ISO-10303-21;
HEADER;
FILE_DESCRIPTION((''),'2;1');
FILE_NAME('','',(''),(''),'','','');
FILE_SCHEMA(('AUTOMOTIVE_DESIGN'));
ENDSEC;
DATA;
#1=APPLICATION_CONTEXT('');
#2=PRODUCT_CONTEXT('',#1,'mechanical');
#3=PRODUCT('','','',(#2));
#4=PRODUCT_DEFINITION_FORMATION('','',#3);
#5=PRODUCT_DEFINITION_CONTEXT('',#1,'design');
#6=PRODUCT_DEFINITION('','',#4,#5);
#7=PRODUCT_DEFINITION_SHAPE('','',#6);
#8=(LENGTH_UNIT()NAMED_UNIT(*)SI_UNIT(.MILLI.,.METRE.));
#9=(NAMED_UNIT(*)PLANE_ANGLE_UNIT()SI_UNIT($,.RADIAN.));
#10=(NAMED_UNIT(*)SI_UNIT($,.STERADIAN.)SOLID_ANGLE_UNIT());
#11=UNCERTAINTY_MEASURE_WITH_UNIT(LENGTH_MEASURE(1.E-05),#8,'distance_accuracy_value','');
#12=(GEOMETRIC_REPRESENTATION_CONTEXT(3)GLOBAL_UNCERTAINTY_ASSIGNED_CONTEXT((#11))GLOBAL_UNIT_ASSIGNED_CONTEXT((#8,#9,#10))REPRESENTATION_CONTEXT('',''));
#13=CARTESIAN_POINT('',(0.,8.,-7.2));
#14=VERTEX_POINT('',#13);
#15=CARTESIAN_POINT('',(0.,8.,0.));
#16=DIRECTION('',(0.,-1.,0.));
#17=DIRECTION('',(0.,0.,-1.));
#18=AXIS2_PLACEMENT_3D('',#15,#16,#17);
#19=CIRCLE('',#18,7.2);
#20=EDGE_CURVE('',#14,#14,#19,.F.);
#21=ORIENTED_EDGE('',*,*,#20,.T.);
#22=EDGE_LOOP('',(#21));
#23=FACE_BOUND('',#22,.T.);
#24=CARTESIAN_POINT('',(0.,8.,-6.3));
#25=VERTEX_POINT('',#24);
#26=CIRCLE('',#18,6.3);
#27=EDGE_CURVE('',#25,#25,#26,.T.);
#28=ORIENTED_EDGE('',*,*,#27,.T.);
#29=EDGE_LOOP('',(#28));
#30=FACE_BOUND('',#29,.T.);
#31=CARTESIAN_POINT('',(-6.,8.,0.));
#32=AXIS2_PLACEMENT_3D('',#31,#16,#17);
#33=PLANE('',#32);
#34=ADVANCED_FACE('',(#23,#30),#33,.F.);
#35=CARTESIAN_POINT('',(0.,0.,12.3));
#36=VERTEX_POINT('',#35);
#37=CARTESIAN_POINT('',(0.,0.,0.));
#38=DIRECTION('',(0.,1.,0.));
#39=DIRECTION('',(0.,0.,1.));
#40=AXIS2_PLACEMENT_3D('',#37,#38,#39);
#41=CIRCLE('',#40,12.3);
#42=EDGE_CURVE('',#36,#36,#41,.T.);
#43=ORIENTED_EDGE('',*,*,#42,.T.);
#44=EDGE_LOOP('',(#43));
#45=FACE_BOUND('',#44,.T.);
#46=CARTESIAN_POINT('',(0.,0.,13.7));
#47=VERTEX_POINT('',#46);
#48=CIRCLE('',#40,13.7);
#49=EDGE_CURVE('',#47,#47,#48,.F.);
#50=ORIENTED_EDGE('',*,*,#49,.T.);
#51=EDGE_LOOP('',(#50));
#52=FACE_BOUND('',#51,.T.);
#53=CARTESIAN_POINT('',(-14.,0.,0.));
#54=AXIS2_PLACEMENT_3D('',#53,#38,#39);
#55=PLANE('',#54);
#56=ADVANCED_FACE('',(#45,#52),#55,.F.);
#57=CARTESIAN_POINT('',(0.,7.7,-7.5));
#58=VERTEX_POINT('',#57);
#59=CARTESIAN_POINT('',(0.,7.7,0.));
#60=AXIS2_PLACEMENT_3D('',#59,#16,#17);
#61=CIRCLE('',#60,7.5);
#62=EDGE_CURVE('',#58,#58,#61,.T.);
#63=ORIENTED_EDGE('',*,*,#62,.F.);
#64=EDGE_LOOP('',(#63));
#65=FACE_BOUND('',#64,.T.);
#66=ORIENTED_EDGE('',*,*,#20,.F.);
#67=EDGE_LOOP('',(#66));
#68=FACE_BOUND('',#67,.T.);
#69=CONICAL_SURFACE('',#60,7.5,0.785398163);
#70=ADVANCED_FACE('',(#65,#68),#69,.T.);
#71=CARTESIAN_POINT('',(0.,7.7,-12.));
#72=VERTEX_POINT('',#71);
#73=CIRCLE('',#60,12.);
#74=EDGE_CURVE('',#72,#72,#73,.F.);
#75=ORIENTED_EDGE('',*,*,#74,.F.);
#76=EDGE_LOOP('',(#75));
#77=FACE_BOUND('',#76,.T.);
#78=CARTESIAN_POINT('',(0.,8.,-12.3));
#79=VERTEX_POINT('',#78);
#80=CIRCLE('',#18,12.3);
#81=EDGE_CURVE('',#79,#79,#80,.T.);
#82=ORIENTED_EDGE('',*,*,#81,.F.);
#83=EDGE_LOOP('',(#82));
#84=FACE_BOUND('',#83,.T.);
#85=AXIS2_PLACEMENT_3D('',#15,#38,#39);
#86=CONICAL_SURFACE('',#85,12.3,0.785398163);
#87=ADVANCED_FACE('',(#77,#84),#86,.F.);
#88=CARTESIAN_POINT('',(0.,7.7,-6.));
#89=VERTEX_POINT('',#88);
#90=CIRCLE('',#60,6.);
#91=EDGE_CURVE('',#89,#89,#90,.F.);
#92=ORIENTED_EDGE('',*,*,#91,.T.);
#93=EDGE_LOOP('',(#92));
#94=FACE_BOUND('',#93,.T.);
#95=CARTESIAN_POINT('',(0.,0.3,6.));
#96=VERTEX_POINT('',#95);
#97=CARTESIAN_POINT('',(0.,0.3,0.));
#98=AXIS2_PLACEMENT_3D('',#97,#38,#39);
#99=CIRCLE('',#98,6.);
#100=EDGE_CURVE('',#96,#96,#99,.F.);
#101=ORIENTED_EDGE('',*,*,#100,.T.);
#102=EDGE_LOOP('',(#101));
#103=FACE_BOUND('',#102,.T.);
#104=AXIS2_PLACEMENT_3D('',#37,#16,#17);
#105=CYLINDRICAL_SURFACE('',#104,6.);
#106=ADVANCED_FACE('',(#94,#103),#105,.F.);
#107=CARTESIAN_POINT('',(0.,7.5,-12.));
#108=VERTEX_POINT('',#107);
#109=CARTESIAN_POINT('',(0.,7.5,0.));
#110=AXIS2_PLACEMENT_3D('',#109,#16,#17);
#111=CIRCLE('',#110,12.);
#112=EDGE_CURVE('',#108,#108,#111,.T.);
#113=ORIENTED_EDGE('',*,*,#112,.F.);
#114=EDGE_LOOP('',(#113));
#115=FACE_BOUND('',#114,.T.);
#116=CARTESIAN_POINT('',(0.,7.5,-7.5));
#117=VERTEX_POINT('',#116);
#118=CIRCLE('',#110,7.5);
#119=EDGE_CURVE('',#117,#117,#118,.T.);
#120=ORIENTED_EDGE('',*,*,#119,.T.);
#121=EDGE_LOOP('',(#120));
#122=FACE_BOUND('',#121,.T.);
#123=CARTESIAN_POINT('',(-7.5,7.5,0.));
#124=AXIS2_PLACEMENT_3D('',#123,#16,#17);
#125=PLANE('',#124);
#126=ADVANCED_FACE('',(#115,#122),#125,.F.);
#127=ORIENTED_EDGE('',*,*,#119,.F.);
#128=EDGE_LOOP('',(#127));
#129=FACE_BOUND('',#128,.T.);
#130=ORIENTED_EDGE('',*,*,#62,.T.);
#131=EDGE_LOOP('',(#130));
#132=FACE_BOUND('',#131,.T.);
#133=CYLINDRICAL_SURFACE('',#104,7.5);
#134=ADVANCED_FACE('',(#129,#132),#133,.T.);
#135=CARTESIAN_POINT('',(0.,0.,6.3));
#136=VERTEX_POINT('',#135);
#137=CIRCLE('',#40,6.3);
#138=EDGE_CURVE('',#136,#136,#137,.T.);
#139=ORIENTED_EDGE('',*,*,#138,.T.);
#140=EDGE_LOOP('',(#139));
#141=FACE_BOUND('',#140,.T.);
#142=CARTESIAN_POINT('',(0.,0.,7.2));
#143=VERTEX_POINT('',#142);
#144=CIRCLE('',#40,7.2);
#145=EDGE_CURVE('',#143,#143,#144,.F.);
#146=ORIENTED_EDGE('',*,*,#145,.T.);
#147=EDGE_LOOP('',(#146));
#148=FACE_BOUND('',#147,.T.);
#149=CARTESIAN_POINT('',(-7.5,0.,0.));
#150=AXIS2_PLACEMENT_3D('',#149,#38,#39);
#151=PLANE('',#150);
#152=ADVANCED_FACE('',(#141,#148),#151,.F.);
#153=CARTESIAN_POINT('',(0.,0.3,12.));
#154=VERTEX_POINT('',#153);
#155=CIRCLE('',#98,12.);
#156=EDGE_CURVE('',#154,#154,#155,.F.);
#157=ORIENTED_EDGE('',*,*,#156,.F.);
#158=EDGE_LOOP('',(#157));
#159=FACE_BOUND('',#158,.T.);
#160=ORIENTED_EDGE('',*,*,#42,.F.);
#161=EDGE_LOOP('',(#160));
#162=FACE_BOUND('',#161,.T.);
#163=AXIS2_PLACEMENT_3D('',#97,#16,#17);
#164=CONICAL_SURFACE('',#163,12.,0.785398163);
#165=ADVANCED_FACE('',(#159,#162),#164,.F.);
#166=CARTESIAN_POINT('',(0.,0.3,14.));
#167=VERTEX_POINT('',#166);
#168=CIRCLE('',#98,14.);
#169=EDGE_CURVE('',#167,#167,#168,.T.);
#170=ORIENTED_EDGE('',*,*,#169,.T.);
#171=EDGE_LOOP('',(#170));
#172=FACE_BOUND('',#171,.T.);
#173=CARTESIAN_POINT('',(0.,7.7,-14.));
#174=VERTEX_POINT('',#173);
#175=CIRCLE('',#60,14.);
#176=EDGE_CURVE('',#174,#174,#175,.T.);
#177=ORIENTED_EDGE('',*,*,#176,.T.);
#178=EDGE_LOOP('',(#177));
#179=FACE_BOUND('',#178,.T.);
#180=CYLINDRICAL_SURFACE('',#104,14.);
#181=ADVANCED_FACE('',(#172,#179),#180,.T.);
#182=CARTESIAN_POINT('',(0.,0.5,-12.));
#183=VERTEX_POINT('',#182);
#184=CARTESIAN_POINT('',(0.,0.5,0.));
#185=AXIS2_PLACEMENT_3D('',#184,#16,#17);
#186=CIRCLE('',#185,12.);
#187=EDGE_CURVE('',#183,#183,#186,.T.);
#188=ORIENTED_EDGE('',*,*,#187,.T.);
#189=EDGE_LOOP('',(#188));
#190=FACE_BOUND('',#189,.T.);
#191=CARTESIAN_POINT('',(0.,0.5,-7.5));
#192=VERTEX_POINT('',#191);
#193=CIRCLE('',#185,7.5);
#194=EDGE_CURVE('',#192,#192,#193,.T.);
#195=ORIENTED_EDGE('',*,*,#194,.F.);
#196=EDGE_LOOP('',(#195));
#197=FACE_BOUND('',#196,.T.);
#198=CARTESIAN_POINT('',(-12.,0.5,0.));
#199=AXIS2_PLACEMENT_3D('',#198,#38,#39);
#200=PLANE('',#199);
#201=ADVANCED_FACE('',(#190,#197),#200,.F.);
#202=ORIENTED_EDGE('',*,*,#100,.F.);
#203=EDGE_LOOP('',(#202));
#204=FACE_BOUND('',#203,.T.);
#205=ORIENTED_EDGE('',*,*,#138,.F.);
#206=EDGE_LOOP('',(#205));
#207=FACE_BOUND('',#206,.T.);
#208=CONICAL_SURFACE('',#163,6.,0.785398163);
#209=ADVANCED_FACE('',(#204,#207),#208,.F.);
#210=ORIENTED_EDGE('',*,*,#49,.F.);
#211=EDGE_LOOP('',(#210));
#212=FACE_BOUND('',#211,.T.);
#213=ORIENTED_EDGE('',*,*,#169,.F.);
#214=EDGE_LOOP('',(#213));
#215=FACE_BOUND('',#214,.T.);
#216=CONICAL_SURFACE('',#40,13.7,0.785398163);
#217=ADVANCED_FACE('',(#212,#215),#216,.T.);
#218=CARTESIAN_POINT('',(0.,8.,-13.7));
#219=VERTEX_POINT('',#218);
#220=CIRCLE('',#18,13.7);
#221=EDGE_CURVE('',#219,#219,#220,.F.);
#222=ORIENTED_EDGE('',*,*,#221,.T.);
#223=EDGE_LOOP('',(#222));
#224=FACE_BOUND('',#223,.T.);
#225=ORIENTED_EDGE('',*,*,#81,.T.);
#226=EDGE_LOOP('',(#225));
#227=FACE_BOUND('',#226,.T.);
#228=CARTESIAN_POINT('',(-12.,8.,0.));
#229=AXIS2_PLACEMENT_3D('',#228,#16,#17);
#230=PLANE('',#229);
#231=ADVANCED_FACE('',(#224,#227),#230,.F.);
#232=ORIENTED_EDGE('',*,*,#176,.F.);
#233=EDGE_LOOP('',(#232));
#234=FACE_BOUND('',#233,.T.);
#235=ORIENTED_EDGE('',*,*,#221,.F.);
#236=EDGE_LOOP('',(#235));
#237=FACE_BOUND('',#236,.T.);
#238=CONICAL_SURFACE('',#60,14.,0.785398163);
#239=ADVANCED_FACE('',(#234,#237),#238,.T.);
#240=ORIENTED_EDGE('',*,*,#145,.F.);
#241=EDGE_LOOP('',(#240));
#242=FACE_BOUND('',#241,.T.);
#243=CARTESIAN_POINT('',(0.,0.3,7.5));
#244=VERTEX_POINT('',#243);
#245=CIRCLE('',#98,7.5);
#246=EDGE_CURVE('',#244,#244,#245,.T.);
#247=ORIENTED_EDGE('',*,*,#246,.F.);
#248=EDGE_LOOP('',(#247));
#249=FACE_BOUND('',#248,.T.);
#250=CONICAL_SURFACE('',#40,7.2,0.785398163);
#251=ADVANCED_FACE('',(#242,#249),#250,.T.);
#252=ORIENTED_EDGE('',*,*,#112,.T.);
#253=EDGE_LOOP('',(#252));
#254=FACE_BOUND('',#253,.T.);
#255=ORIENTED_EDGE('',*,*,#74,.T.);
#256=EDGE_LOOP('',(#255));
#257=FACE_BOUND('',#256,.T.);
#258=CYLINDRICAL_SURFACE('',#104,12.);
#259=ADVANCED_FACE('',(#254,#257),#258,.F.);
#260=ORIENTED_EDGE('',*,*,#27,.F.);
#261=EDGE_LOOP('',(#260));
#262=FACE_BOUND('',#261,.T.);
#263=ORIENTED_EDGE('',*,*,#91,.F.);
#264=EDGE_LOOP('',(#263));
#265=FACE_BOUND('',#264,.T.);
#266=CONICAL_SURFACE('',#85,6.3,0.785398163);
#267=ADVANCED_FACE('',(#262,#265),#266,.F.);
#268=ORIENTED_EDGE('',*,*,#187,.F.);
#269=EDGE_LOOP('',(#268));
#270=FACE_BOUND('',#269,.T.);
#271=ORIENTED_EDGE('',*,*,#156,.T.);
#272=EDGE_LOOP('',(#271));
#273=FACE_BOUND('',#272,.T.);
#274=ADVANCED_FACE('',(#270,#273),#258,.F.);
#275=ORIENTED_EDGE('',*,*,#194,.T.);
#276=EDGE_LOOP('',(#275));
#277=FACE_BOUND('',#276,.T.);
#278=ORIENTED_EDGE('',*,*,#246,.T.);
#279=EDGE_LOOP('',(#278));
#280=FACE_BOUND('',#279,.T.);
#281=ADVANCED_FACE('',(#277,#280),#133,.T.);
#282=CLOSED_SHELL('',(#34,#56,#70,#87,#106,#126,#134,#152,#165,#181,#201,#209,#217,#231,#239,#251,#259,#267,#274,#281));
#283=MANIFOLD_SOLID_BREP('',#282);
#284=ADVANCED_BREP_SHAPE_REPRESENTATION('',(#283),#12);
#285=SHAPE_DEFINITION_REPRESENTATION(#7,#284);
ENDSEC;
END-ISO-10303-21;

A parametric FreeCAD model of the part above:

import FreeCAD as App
import Part
import Sketcher
Q = App.Units.Quantity


def edges_at(feature, points):
    """Names of the edges that pass closest to the given points."""
    edges = feature.Shape.Edges
    near = lambda p: min(range(len(edges)), key=lambda i: edges[i].distToShape(Part.Vertex(*p))[0])
    return sorted({f"Edge{near(p) + 1}" for p in points})

doc = App.newDocument("Part")
params = doc.addObject("Spreadsheet::Sheet", "Params")
for row, (alias, value) in enumerate([
    ("sketch1_width", "2 mm"),
    ("sketch1_height", "8 mm"),
    ("sketch1_width2", "1.5 mm"),
    ("sketch1_width3", "4.5 mm"),
    ("sketch1_height2", "0.5 mm"),
    ("revolution_angle", "360 deg"),
    ("chamfer_size", "0.3 mm"),
], start=1):
    params.set(f"A{row}", alias)
    params.set(f"B{row}", "=" + value)
    params.setAlias(f"B{row}", alias)

body = doc.addObject("PartDesign::Body", "Body")

# Sketch on XY plane
sketch1 = doc.addObject("Sketcher::SketchObject", "Sketch")
body.addObject(sketch1)
sketch1.AttachmentSupport = (doc.XY_Plane, [""])
sketch1.MapMode = "FlatFace"
sketch1.addGeometry([
    Part.LineSegment(App.Vector(-6, 0, 0), App.Vector(-6, 8, 0)),  # 0
    Part.LineSegment(App.Vector(-6, 8, 0), App.Vector(-7.5, 8, 0)),  # 1
    Part.LineSegment(App.Vector(-7.5, 8, 0), App.Vector(-7.5, 7.5, 0)),  # 2
    Part.LineSegment(App.Vector(-7.5, 7.5, 0), App.Vector(-12, 7.5, 0)),  # 3
    Part.LineSegment(App.Vector(-12, 7.5, 0), App.Vector(-12, 8, 0)),  # 4
    Part.LineSegment(App.Vector(-12, 8, 0), App.Vector(-14, 8, 0)),  # 5
    Part.LineSegment(App.Vector(-14, 8, 0), App.Vector(-14, 0, 0)),  # 6
    Part.LineSegment(App.Vector(-14, 0, 0), App.Vector(-12, 0, 0)),  # 7
    Part.LineSegment(App.Vector(-12, 0, 0), App.Vector(-12, 0.5, 0)),  # 8
    Part.LineSegment(App.Vector(-12, 0.5, 0), App.Vector(-7.5, 0.5, 0)),  # 9
    Part.LineSegment(App.Vector(-7.5, 0.5, 0), App.Vector(-7.5, 0, 0)),  # 10
    Part.LineSegment(App.Vector(-7.5, 0, 0), App.Vector(-6, 0, 0)),  # 11
], False)
sketch1.addConstraint([
    Sketcher.Constraint("Coincident", 0, 2, 1, 1),
    Sketcher.Constraint("Coincident", 1, 2, 2, 1),
    Sketcher.Constraint("Coincident", 2, 2, 3, 1),
    Sketcher.Constraint("Coincident", 3, 2, 4, 1),
    Sketcher.Constraint("Coincident", 4, 2, 5, 1),
    Sketcher.Constraint("Coincident", 5, 2, 6, 1),
    Sketcher.Constraint("Coincident", 6, 2, 7, 1),
    Sketcher.Constraint("Coincident", 7, 2, 8, 1),
    Sketcher.Constraint("Coincident", 8, 2, 9, 1),
    Sketcher.Constraint("Coincident", 9, 2, 10, 1),
    Sketcher.Constraint("Coincident", 10, 2, 11, 1),
    Sketcher.Constraint("Coincident", 11, 2, 0, 1),
    Sketcher.Constraint("Vertical", 0),
    Sketcher.Constraint("Horizontal", 1),
    Sketcher.Constraint("Vertical", 2),
    Sketcher.Constraint("Horizontal", 3),
    Sketcher.Constraint("Vertical", 4),
    Sketcher.Constraint("Horizontal", 5),
    Sketcher.Constraint("Vertical", 6),
    Sketcher.Constraint("Horizontal", 7),
    Sketcher.Constraint("Vertical", 8),
    Sketcher.Constraint("Horizontal", 9),
    Sketcher.Constraint("Vertical", 10),
    Sketcher.Constraint("Horizontal", 11),
    Sketcher.Constraint("PointOnObject", 6, 2, -1),
    Sketcher.Constraint("PointOnObject", 10, 2, -1),
    Sketcher.Constraint("Horizontal", 1, 2, 4, 2),
    Sketcher.Constraint("Vertical", 4, 2, 7, 2),
    Sketcher.Constraint("Vertical", 2, 2, 9, 2),
    Sketcher.Constraint("Equal", 4, 8),
    Sketcher.Constraint("DistanceX", 5, 2, 5, 1, Q("2 mm")),
    Sketcher.Constraint("DistanceY", 0, 1, 0, 2, Q("8 mm")),
    Sketcher.Constraint("DistanceX", 1, 2, 1, 1, Q("1.5 mm")),
    Sketcher.Constraint("DistanceX", 3, 2, 3, 1, Q("4.5 mm")),
    Sketcher.Constraint("DistanceY", 2, 2, 2, 1, Q("0.5 mm")),
    Sketcher.Constraint("DistanceX", 0, 2, -1, 1, Q("6 mm")),
])
sketch1.setExpression("Constraints[30]", "Params.sketch1_width")
sketch1.setExpression("Constraints[31]", "Params.sketch1_height")
sketch1.setExpression("Constraints[32]", "Params.sketch1_width2")
sketch1.setExpression("Constraints[33]", "Params.sketch1_width3")
sketch1.setExpression("Constraints[34]", "Params.sketch1_height2")
revolution = doc.addObject("PartDesign::Revolution", "Revolution")
body.addObject(revolution)
revolution.Profile = sketch1
revolution.ReferenceAxis = (sketch1, ["V_Axis"])
revolution.setExpression("Angle", "Params.revolution_angle")
doc.recompute()

chamfer = doc.addObject("PartDesign::Chamfer", "Chamfer")
body.addObject(chamfer)
chamfer.Base = (revolution, edges_at(revolution, [
    (14, 0, 0),
    (14, 8, 0),
    (12, 8, 0),
    (7.5, 8, 0),
    (6, 8, 0),
    (6, 0, 0),
    (7.5, 0, 0),
    (12, 0, 0),
]))
chamfer.setExpression("Size", "Params.chamfer_size")

doc.recompute()
